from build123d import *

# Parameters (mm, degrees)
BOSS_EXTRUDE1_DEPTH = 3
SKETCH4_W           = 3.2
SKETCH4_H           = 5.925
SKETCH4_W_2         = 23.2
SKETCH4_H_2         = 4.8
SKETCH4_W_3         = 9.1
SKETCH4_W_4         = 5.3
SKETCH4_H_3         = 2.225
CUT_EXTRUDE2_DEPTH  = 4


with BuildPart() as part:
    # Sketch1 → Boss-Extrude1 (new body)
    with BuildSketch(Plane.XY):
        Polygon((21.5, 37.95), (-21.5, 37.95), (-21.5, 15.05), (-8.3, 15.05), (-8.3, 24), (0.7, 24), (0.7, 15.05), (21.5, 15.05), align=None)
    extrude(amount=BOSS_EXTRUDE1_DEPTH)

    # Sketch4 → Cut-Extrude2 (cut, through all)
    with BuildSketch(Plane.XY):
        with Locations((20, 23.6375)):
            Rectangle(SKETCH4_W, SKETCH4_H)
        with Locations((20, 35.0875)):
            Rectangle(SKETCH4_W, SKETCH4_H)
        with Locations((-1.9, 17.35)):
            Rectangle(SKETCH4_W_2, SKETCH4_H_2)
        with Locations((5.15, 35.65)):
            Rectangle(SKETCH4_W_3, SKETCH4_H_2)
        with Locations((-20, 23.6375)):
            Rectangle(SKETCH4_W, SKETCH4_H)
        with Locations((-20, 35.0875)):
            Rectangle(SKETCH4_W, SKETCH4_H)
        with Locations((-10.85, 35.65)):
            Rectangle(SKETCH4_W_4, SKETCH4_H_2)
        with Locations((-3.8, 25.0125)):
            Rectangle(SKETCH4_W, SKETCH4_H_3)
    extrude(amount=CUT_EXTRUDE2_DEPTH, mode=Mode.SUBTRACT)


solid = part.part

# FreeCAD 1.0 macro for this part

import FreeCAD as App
import Part
import Sketcher

doc = App.newDocument("Part")
params = doc.addObject("Spreadsheet::Sheet", "Params")
for row, (alias, value) in enumerate([
    ("sketch1_width", "43 mm"),
    ("sketch1_width2", "9 mm"),
    ("sketch1_width3", "13.2 mm"),
    ("sketch1_height", "22.9 mm"),
    ("sketch1_height2", "8.95 mm"),
    ("pad1_length", "3 mm"),
    ("sketch2_width", "3.2 mm"),
    ("sketch2_width2", "23.2 mm"),
    ("sketch2_width3", "9.1 mm"),
    ("sketch2_width4", "5.3 mm"),
    ("sketch2_height", "4.8 mm"),
], start=1):
    params.set(f"A{row}", alias)
    params.set(f"B{row}", "=" + value)
    params.setAlias(f"B{row}", alias)

body = doc.addObject("PartDesign::Body", "Body")

sketch1 = body.newObject("Sketcher::SketchObject", "Sketch")
sketch1.AttachmentSupport = (doc.getObject("XY_Plane"), [""])
sketch1.MapMode = "FlatFace"
sketch1.addGeometry([
    Part.LineSegment(App.Vector(22, 38, 0), App.Vector(-22, 38, 0)),
    Part.LineSegment(App.Vector(-22, 38, 0), App.Vector(-22, 15, 0)),
    Part.LineSegment(App.Vector(-22, 15, 0), App.Vector(-8, 15, 0)),
    Part.LineSegment(App.Vector(-8, 15, 0), App.Vector(-8, 24, 0)),
    Part.LineSegment(App.Vector(-8, 24, 0), App.Vector(1, 24, 0)),
    Part.LineSegment(App.Vector(1, 24, 0), App.Vector(1, 15, 0)),
    Part.LineSegment(App.Vector(1, 15, 0), App.Vector(22, 15, 0)),
    Part.LineSegment(App.Vector(22, 15, 0), App.Vector(22, 38, 0)),
], False)
sketch1.addConstraint([
    Sketcher.Constraint("Coincident", 0, 2, 1, 1),
    Sketcher.Constraint("Coincident", 1, 2, 2, 1),
    Sketcher.Constraint("Coincident", 2, 2, 3, 1),
    Sketcher.Constraint("Coincident", 3, 2, 4, 1),
    Sketcher.Constraint("Coincident", 4, 2, 5, 1),
    Sketcher.Constraint("Coincident", 5, 2, 6, 1),
    Sketcher.Constraint("Coincident", 6, 2, 7, 1),
    Sketcher.Constraint("Coincident", 7, 2, 0, 1),
    Sketcher.Constraint("Horizontal", 0),
    Sketcher.Constraint("Vertical", 1),
    Sketcher.Constraint("Horizontal", 2),
    Sketcher.Constraint("Vertical", 3),
    Sketcher.Constraint("Horizontal", 4),
    Sketcher.Constraint("Vertical", 5),
    Sketcher.Constraint("Horizontal", 6),
    Sketcher.Constraint("Vertical", 7),
    Sketcher.Constraint("Symmetric", 1, 2, 6, 2, -2),
    Sketcher.Constraint("DistanceX", 0, 2, 0, 1, 43.0),
    Sketcher.Constraint("DistanceX", 4, 1, 4, 2, 9.0),
    Sketcher.Constraint("DistanceX", 2, 1, 2, 2, 13.2),
    Sketcher.Constraint("DistanceY", 1, 2, 1, 1, 22.9),
    Sketcher.Constraint("DistanceY", -1, 1, 3, 2, 24.0),
    Sketcher.Constraint("DistanceY", 3, 1, 3, 2, 8.95),
])
sketch1.setExpression("Constraints[17]", "Params.sketch1_width")
sketch1.setExpression("Constraints[18]", "Params.sketch1_width2")
sketch1.setExpression("Constraints[19]", "Params.sketch1_width3")
sketch1.setExpression("Constraints[20]", "Params.sketch1_height")
sketch1.setExpression("Constraints[22]", "Params.sketch1_height2")
pad1 = body.newObject("PartDesign::Pad", "Pad")
pad1.Profile = sketch1
pad1.setExpression("Length", "Params.pad1_length")

sketch2 = body.newObject("Sketcher::SketchObject", "Sketch001")
sketch2.AttachmentSupport = (doc.getObject("XY_Plane"), [""])
sketch2.MapMode = "FlatFace"
sketch2.addGeometry([
    Part.LineSegment(App.Vector(18.4, 26.6, 0), App.Vector(18.4, 20.7, 0)),
    Part.LineSegment(App.Vector(18.4, 20.7, 0), App.Vector(21.6, 20.7, 0)),
    Part.LineSegment(App.Vector(21.6, 20.7, 0), App.Vector(21.6, 26.6, 0)),
    Part.LineSegment(App.Vector(21.6, 26.6, 0), App.Vector(18.4, 26.6, 0)),
    Part.LineSegment(App.Vector(18.4, 38, 0), App.Vector(18.4, 32.1, 0)),
    Part.LineSegment(App.Vector(18.4, 32.1, 0), App.Vector(21.6, 32.1, 0)),
    Part.LineSegment(App.Vector(21.6, 32.1, 0), App.Vector(21.6, 38, 0)),
    Part.LineSegment(App.Vector(21.6, 38, 0), App.Vector(18.4, 38, 0)),
    Part.LineSegment(App.Vector(-13.5, 19.8, 0), App.Vector(-13.5, 14.9, 0)),
    Part.LineSegment(App.Vector(-13.5, 14.9, 0), App.Vector(9.7, 14.9, 0)),
    Part.LineSegment(App.Vector(9.7, 14.9, 0), App.Vector(9.7, 19.8, 0)),
    Part.LineSegment(App.Vector(9.7, 19.8, 0), App.Vector(-13.5, 19.8, 0)),
    Part.LineSegment(App.Vector(0.6, 38, 0), App.Vector(0.6, 33.2, 0)),
    Part.LineSegment(App.Vector(0.6, 33.2, 0), App.Vector(9.7, 33.2, 0)),
    Part.LineSegment(App.Vector(9.7, 33.2, 0), App.Vector(9.7, 38, 0)),
    Part.LineSegment(App.Vector(9.7, 38, 0), App.Vector(0.6, 38, 0)),
    Part.LineSegment(App.Vector(-21.6, 26.6, 0), App.Vector(-21.6, 20.7, 0)),
    Part.LineSegment(App.Vector(-21.6, 20.7, 0), App.Vector(-18.4, 20.7, 0)),
    Part.LineSegment(App.Vector(-18.4, 20.7, 0), App.Vector(-18.4, 26.6, 0)),
    Part.LineSegment(App.Vector(-18.4, 26.6, 0), App.Vector(-21.6, 26.6, 0)),
    Part.LineSegment(App.Vector(-21.6, 38, 0), App.Vector(-21.6, 32.1, 0)),
    Part.LineSegment(App.Vector(-21.6, 32.1, 0), App.Vector(-18.4, 32.1, 0)),
    Part.LineSegment(App.Vector(-18.4, 32.1, 0), App.Vector(-18.4, 38, 0)),
    Part.LineSegment(App.Vector(-18.4, 38, 0), App.Vector(-21.6, 38, 0)),
    Part.LineSegment(App.Vector(-13.5, 38, 0), App.Vector(-13.5, 33.2, 0)),
    Part.LineSegment(App.Vector(-13.5, 33.2, 0), App.Vector(-8.2, 33.2, 0)),
    Part.LineSegment(App.Vector(-8.2, 33.2, 0), App.Vector(-8.2, 38, 0)),
    Part.LineSegment(App.Vector(-8.2, 38, 0), App.Vector(-13.5, 38, 0)),
    Part.LineSegment(App.Vector(-5.4, 26.1, 0), App.Vector(-5.4, 23.9, 0)),
    Part.LineSegment(App.Vector(-5.4, 23.9, 0), App.Vector(-2.2, 23.9, 0)),
    Part.LineSegment(App.Vector(-2.2, 23.9, 0), App.Vector(-2.2, 26.1, 0)),
    Part.LineSegment(App.Vector(-2.2, 26.1, 0), App.Vector(-5.4, 26.1, 0)),
], False)
sketch2.addConstraint([
    Sketcher.Constraint("Coincident", 0, 2, 1, 1),
    Sketcher.Constraint("Coincident", 1, 2, 2, 1),
    Sketcher.Constraint("Coincident", 2, 2, 3, 1),
    Sketcher.Constraint("Coincident", 3, 2, 0, 1),
    Sketcher.Constraint("Coincident", 4, 2, 5, 1),
    Sketcher.Constraint("Coincident", 5, 2, 6, 1),
    Sketcher.Constraint("Coincident", 6, 2, 7, 1),
    Sketcher.Constraint("Coincident", 7, 2, 4, 1),
    Sketcher.Constraint("Coincident", 8, 2, 9, 1),
    Sketcher.Constraint("Coincident", 9, 2, 10, 1),
    Sketcher.Constraint("Coincident", 10, 2, 11, 1),
    Sketcher.Constraint("Coincident", 11, 2, 8, 1),
    Sketcher.Constraint("Coincident", 12, 2, 13, 1),
    Sketcher.Constraint("Coincident", 13, 2, 14, 1),
    Sketcher.Constraint("Coincident", 14, 2, 15, 1),
    Sketcher.Constraint("Coincident", 15, 2, 12, 1),
    Sketcher.Constraint("Coincident", 16, 2, 17, 1),
    Sketcher.Constraint("Coincident", 17, 2, 18, 1),
    Sketcher.Constraint("Coincident", 18, 2, 19, 1),
    Sketcher.Constraint("Coincident", 19, 2, 16, 1),
    Sketcher.Constraint("Coincident", 20, 2, 21, 1),
    Sketcher.Constraint("Coincident", 21, 2, 22, 1),
    Sketcher.Constraint("Coincident", 22, 2, 23, 1),
    Sketcher.Constraint("Coincident", 23, 2, 20, 1),
    Sketcher.Constraint("Coincident", 24, 2, 25, 1),
    Sketcher.Constraint("Coincident", 25, 2, 26, 1),
    Sketcher.Constraint("Coincident", 26, 2, 27, 1),
    Sketcher.Constraint("Coincident", 27, 2, 24, 1),
    Sketcher.Constraint("Coincident", 28, 2, 29, 1),
    Sketcher.Constraint("Coincident", 29, 2, 30, 1),
    Sketcher.Constraint("Coincident", 30, 2, 31, 1),
    Sketcher.Constraint("Coincident", 31, 2, 28, 1),
    Sketcher.Constraint("Vertical", 0),
    Sketcher.Constraint("Horizontal", 1),
    Sketcher.Constraint("Vertical", 2),
    Sketcher.Constraint("Horizontal", 3),
    Sketcher.Constraint("Vertical", 4),
    Sketcher.Constraint("Horizontal", 5),
    Sketcher.Constraint("Vertical", 6),
    Sketcher.Constraint("Horizontal", 7),
    Sketcher.Constraint("Vertical", 8),
    Sketcher.Constraint("Horizontal", 9),
    Sketcher.Constraint("Vertical", 10),
    Sketcher.Constraint("Horizontal", 11),
    Sketcher.Constraint("Vertical", 12),
    Sketcher.Constraint("Horizontal", 13),
    Sketcher.Constraint("Vertical", 14),
    Sketcher.Constraint("Horizontal", 15),
    Sketcher.Constraint("Vertical", 16),
    Sketcher.Constraint("Horizontal", 17),
    Sketcher.Constraint("Vertical", 18),
    Sketcher.Constraint("Horizontal", 19),
    Sketcher.Constraint("Vertical", 20),
    Sketcher.Constraint("Horizontal", 21),
    Sketcher.Constraint("Vertical", 22),
    Sketcher.Constraint("Horizontal", 23),
    Sketcher.Constraint("Vertical", 24),
    Sketcher.Constraint("Horizontal", 25),
    Sketcher.Constraint("Vertical", 26),
    Sketcher.Constraint("Horizontal", 27),
    Sketcher.Constraint("Vertical", 28),
    Sketcher.Constraint("Horizontal", 29),
    Sketcher.Constraint("Vertical", 30),
    Sketcher.Constraint("Horizontal", 31),
    Sketcher.Constraint("Symmetric", 1, 2, 16, 2, -2),
    Sketcher.Constraint("Symmetric", 3, 2, 18, 2, -2),
    Sketcher.Constraint("Symmetric", 5, 2, 20, 2, -2),
    Sketcher.Constraint("Symmetric", 7, 2, 22, 2, -2),
    Sketcher.Constraint("Horizontal", 7, 2, 14, 2),
    Sketcher.Constraint("Horizontal", 13, 2, 24, 2),
    Sketcher.Constraint("Horizontal", 23, 2, 26, 2),
    Sketcher.Constraint("Vertical", 3, 2, 4, 2),
    Sketcher.Constraint("Vertical", 2, 2, 5, 2),
    Sketcher.Constraint("Vertical", 10, 2, 13, 2),
    Sketcher.Constraint("Vertical", 11, 2, 24, 2),
    Sketcher.Constraint("Equal", 23, 29),
    Sketcher.Constraint("Equal", 2, 4),
    Sketcher.Constraint("Equal", 10, 12),
    Sketcher.Constraint("DistanceX", 1, 1, 1, 2, 3.2),
    Sketcher.Constraint("DistanceX", 9, 1, 9, 2, 23.2),
    Sketcher.Constraint("DistanceX", 13, 1, 13, 2, 9.1),
    Sketcher.Constraint("DistanceX", 25, 1, 25, 2, 5.3),
    Sketcher.Constraint("DistanceY", 8, 2, 8, 1, 4.8),
    Sketcher.Constraint("DistanceX", 17, 2, 12, 2, 19.0),
    Sketcher.Constraint("DistanceX", 28, 2, 12, 2, 6.0),
    Sketcher.Constraint("DistanceX", -1, 1, 0, 2, 18.4),
    Sketcher.Constraint("DistanceY", -1, 1, 2, 2, 26.6),
    Sketcher.Constraint("DistanceY", -1, 1, 28, 2, 23.9),
    Sketcher.Constraint("DistanceY", 10, 2, 12, 2, 13.5),
    Sketcher.Constraint("DistanceY", 0, 2, 0, 1, 5.925),
    Sketcher.Constraint("DistanceY", 28, 2, 28, 1, 2.225),
    Sketcher.Constraint("DistanceY", -1, 1, 6, 2, 38.05),
])
sketch2.setExpression("Constraints[78]", "Params.sketch2_width")
sketch2.setExpression("Constraints[79]", "Params.sketch2_width2")
sketch2.setExpression("Constraints[80]", "Params.sketch2_width3")
sketch2.setExpression("Constraints[81]", "Params.sketch2_width4")
sketch2.setExpression("Constraints[82]", "Params.sketch2_height")
pocket1 = body.newObject("PartDesign::Pocket", "Pocket")
pocket1.Profile = sketch2
pocket1.Type = "ThroughAll"
pocket1.Reversed = True

doc.recompute()
